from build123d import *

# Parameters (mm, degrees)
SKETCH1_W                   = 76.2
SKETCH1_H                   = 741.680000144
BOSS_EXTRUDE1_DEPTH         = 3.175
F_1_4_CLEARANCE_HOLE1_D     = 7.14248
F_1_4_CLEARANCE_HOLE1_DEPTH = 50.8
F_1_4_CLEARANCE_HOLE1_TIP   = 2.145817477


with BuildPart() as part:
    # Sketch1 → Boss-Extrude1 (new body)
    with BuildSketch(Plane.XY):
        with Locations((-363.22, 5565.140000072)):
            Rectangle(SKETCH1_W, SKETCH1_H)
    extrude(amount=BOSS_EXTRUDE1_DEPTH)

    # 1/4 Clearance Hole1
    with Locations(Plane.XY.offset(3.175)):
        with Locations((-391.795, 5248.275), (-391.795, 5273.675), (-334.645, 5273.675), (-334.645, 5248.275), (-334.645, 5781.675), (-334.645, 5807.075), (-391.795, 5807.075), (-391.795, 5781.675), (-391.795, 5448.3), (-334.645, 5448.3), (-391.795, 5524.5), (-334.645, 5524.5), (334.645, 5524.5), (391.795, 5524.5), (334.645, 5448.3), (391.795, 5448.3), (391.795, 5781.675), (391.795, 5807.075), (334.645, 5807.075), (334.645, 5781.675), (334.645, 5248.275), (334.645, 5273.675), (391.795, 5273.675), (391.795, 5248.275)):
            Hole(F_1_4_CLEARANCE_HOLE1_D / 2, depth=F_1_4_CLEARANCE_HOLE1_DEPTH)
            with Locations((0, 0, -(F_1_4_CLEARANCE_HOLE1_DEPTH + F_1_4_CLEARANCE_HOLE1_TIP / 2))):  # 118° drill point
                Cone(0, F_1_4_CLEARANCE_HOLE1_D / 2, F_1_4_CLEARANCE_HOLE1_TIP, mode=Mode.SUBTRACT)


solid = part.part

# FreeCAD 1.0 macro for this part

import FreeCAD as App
import Part
import Sketcher
Q = App.Units.Quantity

doc = App.newDocument("Part")
body = doc.addObject("PartDesign::Body", "Body")

# Sketch on XY plane
sketch1 = body.newObject("Sketcher::SketchObject", "Sketch")
sketch1.AttachmentSupport = (doc.getObject("XY_Plane"), [""])
sketch1.MapMode = "FlatFace"
sketch1.addGeometry(Part.LineSegment(App.Vector(-401, 5936, 0), App.Vector(-401, 5194, 0)), False)
sketch1.addGeometry(Part.LineSegment(App.Vector(-401, 5194, 0), App.Vector(-325, 5194, 0)), False)
sketch1.addGeometry(Part.LineSegment(App.Vector(-325, 5194, 0), App.Vector(-325, 5936, 0)), False)
sketch1.addGeometry(Part.LineSegment(App.Vector(-325, 5936, 0), App.Vector(-401, 5936, 0)), False)
sketch1.addConstraint(Sketcher.Constraint("Coincident", 0, 2, 1, 1))
sketch1.addConstraint(Sketcher.Constraint("Coincident", 1, 2, 2, 1))
sketch1.addConstraint(Sketcher.Constraint("Coincident", 2, 2, 3, 1))
sketch1.addConstraint(Sketcher.Constraint("Coincident", 3, 2, 0, 1))
sketch1.addConstraint(Sketcher.Constraint("Vertical", 0))
sketch1.addConstraint(Sketcher.Constraint("Horizontal", 1))
sketch1.addConstraint(Sketcher.Constraint("Vertical", 2))
sketch1.addConstraint(Sketcher.Constraint("Horizontal", 3))
sketch1.addConstraint(Sketcher.Constraint("DistanceX", 1, 1, 1, 2, Q("3 in")))
sketch1.addConstraint(Sketcher.Constraint("DistanceY", 0, 2, 0, 1, Q("29.2 in")))
sketch1.addConstraint(Sketcher.Constraint("DistanceX", 0, 2, -1, 1, Q("15.8 in")))
sketch1.addConstraint(Sketcher.Constraint("DistanceY", -1, 1, 0, 2, Q("204.5 in")))
pad1 = body.newObject("PartDesign::Pad", "Pad")
pad1.Profile = sketch1
pad1.Length = Q("0.125 in")

# Sketch on XY plane
sketch2 = body.newObject("Sketcher::SketchObject", "Sketch001")
sketch2.AttachmentSupport = (doc.getObject("XY_Plane"), [""])
sketch2.MapMode = "FlatFace"
sketch2.AttachmentOffset = App.Placement(App.Vector(0, 0, 0.125 * 25.4), App.Rotation())
sketch2.addGeometry(Part.Circle(App.Vector(-391.8, 5248.3, 0), App.Vector(0, 0, 1), 3.6), False)
sketch2.addGeometry(Part.Circle(App.Vector(-391.8, 5273.7, 0), App.Vector(0, 0, 1), 3.6), False)
sketch2.addGeometry(Part.Circle(App.Vector(-334.6, 5273.7, 0), App.Vector(0, 0, 1), 3.6), False)
sketch2.addGeometry(Part.Circle(App.Vector(-334.6, 5248.3, 0), App.Vector(0, 0, 1), 3.6), False)
sketch2.addGeometry(Part.Circle(App.Vector(-334.6, 5781.7, 0), App.Vector(0, 0, 1), 3.6), False)
sketch2.addGeometry(Part.Circle(App.Vector(-334.6, 5807.1, 0), App.Vector(0, 0, 1), 3.6), False)
sketch2.addGeometry(Part.Circle(App.Vector(-391.8, 5807.1, 0), App.Vector(0, 0, 1), 3.6), False)
sketch2.addGeometry(Part.Circle(App.Vector(-391.8, 5781.7, 0), App.Vector(0, 0, 1), 3.6), False)
sketch2.addGeometry(Part.Circle(App.Vector(-391.8, 5448.3, 0), App.Vector(0, 0, 1), 3.6), False)
sketch2.addGeometry(Part.Circle(App.Vector(-334.6, 5448.3, 0), App.Vector(0, 0, 1), 3.6), False)
sketch2.addGeometry(Part.Circle(App.Vector(-391.8, 5524.5, 0), App.Vector(0, 0, 1), 3.6), False)
sketch2.addGeometry(Part.Circle(App.Vector(-334.6, 5524.5, 0), App.Vector(0, 0, 1), 3.6), False)
sketch2.addGeometry(Part.Circle(App.Vector(334.6, 5524.5, 0), App.Vector(0, 0, 1), 3.6), False)
sketch2.addGeometry(Part.Circle(App.Vector(391.8, 5524.5, 0), App.Vector(0, 0, 1), 3.6), False)
sketch2.addGeometry(Part.Circle(App.Vector(334.6, 5448.3, 0), App.Vector(0, 0, 1), 3.6), False)
sketch2.addGeometry(Part.Circle(App.Vector(391.8, 5448.3, 0), App.Vector(0, 0, 1), 3.6), False)
sketch2.addGeometry(Part.Circle(App.Vector(391.8, 5781.7, 0), App.Vector(0, 0, 1), 3.6), False)
sketch2.addGeometry(Part.Circle(App.Vector(391.8, 5807.1, 0), App.Vector(0, 0, 1), 3.6), False)
sketch2.addGeometry(Part.Circle(App.Vector(334.6, 5807.1, 0), App.Vector(0, 0, 1), 3.6), False)
sketch2.addGeometry(Part.Circle(App.Vector(334.6, 5781.7, 0), App.Vector(0, 0, 1), 3.6), False)
sketch2.addGeometry(Part.Circle(App.Vector(334.6, 5248.3, 0), App.Vector(0, 0, 1), 3.6), False)
sketch2.addGeometry(Part.Circle(App.Vector(334.6, 5273.7, 0), App.Vector(0, 0, 1), 3.6), False)
sketch2.addGeometry(Part.Circle(App.Vector(391.8, 5273.7, 0), App.Vector(0, 0, 1), 3.6), False)
sketch2.addGeometry(Part.Circle(App.Vector(391.8, 5248.3, 0), App.Vector(0, 0, 1), 3.6), False)
sketch2.addConstraint(Sketcher.Constraint("Equal", 0, 1))
sketch2.addConstraint(Sketcher.Constraint("Equal", 1, 2))
sketch2.addConstraint(Sketcher.Constraint("Equal", 2, 3))
sketch2.addConstraint(Sketcher.Constraint("Equal", 3, 4))
sketch2.addConstraint(Sketcher.Constraint("Equal", 4, 5))
sketch2.addConstraint(Sketcher.Constraint("Equal", 5, 6))
sketch2.addConstraint(Sketcher.Constraint("Equal", 6, 7))
sketch2.addConstraint(Sketcher.Constraint("Equal", 7, 8))
sketch2.addConstraint(Sketcher.Constraint("Equal", 8, 9))
sketch2.addConstraint(Sketcher.Constraint("Equal", 9, 10))
sketch2.addConstraint(Sketcher.Constraint("Equal", 10, 11))
sketch2.addConstraint(Sketcher.Constraint("Equal", 11, 12))
sketch2.addConstraint(Sketcher.Constraint("Equal", 12, 13))
sketch2.addConstraint(Sketcher.Constraint("Equal", 13, 14))
sketch2.addConstraint(Sketcher.Constraint("Equal", 14, 15))
sketch2.addConstraint(Sketcher.Constraint("Equal", 15, 16))
sketch2.addConstraint(Sketcher.Constraint("Equal", 16, 17))
sketch2.addConstraint(Sketcher.Constraint("Equal", 17, 18))
sketch2.addConstraint(Sketcher.Constraint("Equal", 18, 19))
sketch2.addConstraint(Sketcher.Constraint("Equal", 19, 20))
sketch2.addConstraint(Sketcher.Constraint("Equal", 20, 21))
sketch2.addConstraint(Sketcher.Constraint("Equal", 21, 22))
sketch2.addConstraint(Sketcher.Constraint("Equal", 22, 23))
sketch2.addConstraint(Sketcher.Constraint("Symmetric", 11, 3, 12, 3, -2))
sketch2.addConstraint(Sketcher.Constraint("Symmetric", 10, 3, 13, 3, -2))
sketch2.addConstraint(Sketcher.Constraint("Symmetric", 9, 3, 14, 3, -2))
sketch2.addConstraint(Sketcher.Constraint("Symmetric", 8, 3, 15, 3, -2))
sketch2.addConstraint(Sketcher.Constraint("Symmetric", 7, 3, 16, 3, -2))
sketch2.addConstraint(Sketcher.Constraint("Symmetric", 6, 3, 17, 3, -2))
sketch2.addConstraint(Sketcher.Constraint("Symmetric", 5, 3, 18, 3, -2))
sketch2.addConstraint(Sketcher.Constraint("Symmetric", 4, 3, 19, 3, -2))
sketch2.addConstraint(Sketcher.Constraint("Symmetric", 3, 3, 20, 3, -2))
sketch2.addConstraint(Sketcher.Constraint("Symmetric", 2, 3, 21, 3, -2))
sketch2.addConstraint(Sketcher.Constraint("Symmetric", 1, 3, 22, 3, -2))
sketch2.addConstraint(Sketcher.Constraint("Symmetric", 0, 3, 23, 3, -2))
sketch2.addConstraint(Sketcher.Constraint("Horizontal", 1, 3, 2, 3))
sketch2.addConstraint(Sketcher.Constraint("Horizontal", 0, 3, 3, 3))
sketch2.addConstraint(Sketcher.Constraint("Horizontal", 5, 3, 6, 3))
sketch2.addConstraint(Sketcher.Constraint("Horizontal", 4, 3, 7, 3))
sketch2.addConstraint(Sketcher.Constraint("Horizontal", 8, 3, 9, 3))
sketch2.addConstraint(Sketcher.Constraint("Horizontal", 10, 3, 11, 3))
sketch2.addConstraint(Sketcher.Constraint("Vertical", 0, 3, 1, 3))
sketch2.addConstraint(Sketcher.Constraint("Vertical", 2, 3, 3, 3))
sketch2.addConstraint(Sketcher.Constraint("Vertical", 3, 3, 4, 3))
sketch2.addConstraint(Sketcher.Constraint("Vertical", 4, 3, 5, 3))
sketch2.addConstraint(Sketcher.Constraint("Vertical", 1, 3, 6, 3))
sketch2.addConstraint(Sketcher.Constraint("Vertical", 6, 3, 7, 3))
sketch2.addConstraint(Sketcher.Constraint("Vertical", 7, 3, 8, 3))
sketch2.addConstraint(Sketcher.Constraint("Vertical", 5, 3, 9, 3))
sketch2.addConstraint(Sketcher.Constraint("Vertical", 8, 3, 10, 3))
sketch2.addConstraint(Sketcher.Constraint("Vertical", 9, 3, 11, 3))
sketch2.addConstraint(Sketcher.Constraint("DistanceY", 0, 3, 1, 3, Q("1 in")))
sketch2.addConstraint(Sketcher.Constraint("DistanceY", 2, 3, 4, 3, Q("20 in")))
sketch2.addConstraint(Sketcher.Constraint("DistanceY", 4, 3, 5, 3, Q("1 in")))
sketch2.addConstraint(Sketcher.Constraint("DistanceY", 8, 3, 10, 3, Q("3 in")))
sketch2.addConstraint(Sketcher.Constraint("Diameter", 0, Q("0.2812 in")))
sketch2.addConstraint(Sketcher.Constraint("DistanceY", -1, 1, 8, 3, Q("214.5 in")))
sketch2.addConstraint(Sketcher.Constraint("DistanceX", 11, 3, 13, 3, Q("28.6 in")))
sketch2.addConstraint(Sketcher.Constraint("DistanceX", 1, 3, 2, 3, Q("2.25 in")))
sketch2.addConstraint(Sketcher.Constraint("DistanceY", -1, 1, 0, 3, Q("206.625 in")))
doc.recompute()
hole = body.newObject("PartDesign::Hole", "Hole")
hole.Profile = sketch2
hole.ThreadType = "None"
hole.Diameter = Q("0.2812 in")
hole.DepthType = "Dimension"
hole.Depth = Q("2 in")
hole.DrillPoint = "Angled"
hole.DrillPointAngle = 118

doc.recompute()
